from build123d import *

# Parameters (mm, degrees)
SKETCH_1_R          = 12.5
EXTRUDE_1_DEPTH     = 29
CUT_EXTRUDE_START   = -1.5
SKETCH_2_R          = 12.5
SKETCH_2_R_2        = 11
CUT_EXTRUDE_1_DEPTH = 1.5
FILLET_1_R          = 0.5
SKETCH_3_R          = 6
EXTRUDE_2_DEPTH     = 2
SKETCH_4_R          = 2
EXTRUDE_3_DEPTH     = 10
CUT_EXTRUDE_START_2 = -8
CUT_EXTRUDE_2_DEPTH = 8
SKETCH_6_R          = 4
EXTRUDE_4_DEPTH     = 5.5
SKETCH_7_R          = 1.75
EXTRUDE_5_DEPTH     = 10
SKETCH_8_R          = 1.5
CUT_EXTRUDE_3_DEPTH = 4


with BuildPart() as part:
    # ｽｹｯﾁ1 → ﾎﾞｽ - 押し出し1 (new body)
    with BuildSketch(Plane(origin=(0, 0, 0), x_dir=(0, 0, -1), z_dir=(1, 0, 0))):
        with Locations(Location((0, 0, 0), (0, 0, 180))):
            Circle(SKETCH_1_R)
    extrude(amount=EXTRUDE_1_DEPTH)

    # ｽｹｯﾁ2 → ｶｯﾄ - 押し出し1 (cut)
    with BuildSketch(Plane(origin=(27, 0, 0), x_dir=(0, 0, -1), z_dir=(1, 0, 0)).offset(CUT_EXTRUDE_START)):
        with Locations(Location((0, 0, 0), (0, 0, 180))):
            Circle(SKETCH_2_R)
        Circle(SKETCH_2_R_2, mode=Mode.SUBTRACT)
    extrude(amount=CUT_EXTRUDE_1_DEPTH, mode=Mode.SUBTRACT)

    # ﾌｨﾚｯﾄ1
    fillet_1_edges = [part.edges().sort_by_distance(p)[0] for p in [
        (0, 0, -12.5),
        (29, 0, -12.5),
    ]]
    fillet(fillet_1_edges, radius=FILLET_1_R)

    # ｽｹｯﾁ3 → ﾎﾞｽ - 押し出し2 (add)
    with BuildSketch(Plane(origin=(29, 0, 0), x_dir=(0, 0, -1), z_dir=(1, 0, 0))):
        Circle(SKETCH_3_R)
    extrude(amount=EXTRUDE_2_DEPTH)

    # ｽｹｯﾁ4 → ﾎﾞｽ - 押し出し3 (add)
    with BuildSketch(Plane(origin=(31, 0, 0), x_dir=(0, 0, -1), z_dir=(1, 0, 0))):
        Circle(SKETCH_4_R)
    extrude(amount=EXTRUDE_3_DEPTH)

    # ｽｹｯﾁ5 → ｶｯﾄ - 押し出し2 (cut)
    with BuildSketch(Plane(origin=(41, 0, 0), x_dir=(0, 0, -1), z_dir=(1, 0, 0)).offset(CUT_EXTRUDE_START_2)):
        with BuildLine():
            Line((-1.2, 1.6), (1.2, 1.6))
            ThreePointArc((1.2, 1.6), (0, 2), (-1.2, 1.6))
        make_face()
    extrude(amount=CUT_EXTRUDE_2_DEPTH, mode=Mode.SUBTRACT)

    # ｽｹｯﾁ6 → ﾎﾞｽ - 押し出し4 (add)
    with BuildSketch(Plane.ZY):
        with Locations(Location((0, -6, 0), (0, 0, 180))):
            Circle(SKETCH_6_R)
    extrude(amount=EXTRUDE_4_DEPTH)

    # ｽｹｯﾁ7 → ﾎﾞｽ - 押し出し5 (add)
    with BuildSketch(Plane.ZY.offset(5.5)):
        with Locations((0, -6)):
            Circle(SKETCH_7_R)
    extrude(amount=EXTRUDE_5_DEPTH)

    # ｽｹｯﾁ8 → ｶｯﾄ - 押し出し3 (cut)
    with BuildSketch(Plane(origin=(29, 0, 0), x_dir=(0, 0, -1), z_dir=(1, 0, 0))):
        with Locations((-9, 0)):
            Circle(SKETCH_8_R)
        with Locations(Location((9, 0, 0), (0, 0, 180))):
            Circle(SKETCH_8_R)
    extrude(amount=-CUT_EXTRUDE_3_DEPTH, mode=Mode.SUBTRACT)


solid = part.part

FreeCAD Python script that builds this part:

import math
import FreeCAD as App
import Part
import Sketcher


def edges_at(feature, points):
    """Names of the edges that pass closest to the given points."""
    edges = feature.Shape.Edges
    near = lambda p: min(range(len(edges)), key=lambda i: edges[i].distToShape(Part.Vertex(*p))[0])
    return sorted({f"Edge{near(p) + 1}" for p in points})

doc = App.newDocument("Part")
body = doc.addObject("PartDesign::Body", "Body")

# Sketch on YZ plane
sketch1 = body.newObject("Sketcher::SketchObject", "Sketch")
sketch1.AttachmentSupport = (doc.getObject("YZ_Plane"), [""])
sketch1.MapMode = "FlatFace"
sketch1.addGeometry(Part.Circle(App.Vector(0, 0, 0), App.Vector(0, 0, 1), 12), False)
sketch1.addConstraint([
    Sketcher.Constraint("Coincident", 0, 3, -1, 1),
    Sketcher.Constraint("Diameter", 0, 25.0),
])
pad1 = body.newObject("PartDesign::Pad", "Pad")
pad1.Profile = sketch1
pad1.Length = 29

# Sketch on YZ plane
sketch2 = body.newObject("Sketcher::SketchObject", "Sketch001")
sketch2.AttachmentSupport = (doc.getObject("YZ_Plane"), [""])
sketch2.MapMode = "FlatFace"
sketch2.AttachmentOffset = App.Placement(App.Vector(0, 0, 25.5), App.Rotation())
sketch2.addGeometry([
    Part.Circle(App.Vector(0, 0, 0), App.Vector(0, 0, 1), 12),
    Part.Circle(App.Vector(0, 0, 0), App.Vector(0, 0, 1), 11),
], False)
sketch2.addConstraint([
    Sketcher.Constraint("Coincident", 0, 3, -1, 1),
    Sketcher.Constraint("Coincident", 1, 3, -1, 1),
    Sketcher.Constraint("Diameter", 0, 25.0),
    Sketcher.Constraint("Diameter", 1, 22.0),
])
pocket1 = body.newObject("PartDesign::Pocket", "Pocket")
pocket1.Profile = sketch2
pocket1.Length = 1.5
pocket1.Reversed = True
doc.recompute()

fillet = body.newObject("PartDesign::Fillet", "Fillet")
fillet.Base = (pocket1, edges_at(pocket1, [(0, 0, -12.5), (29, 0, -12.5)]))
fillet.Radius = 0.5

# Sketch on YZ plane
sketch3 = body.newObject("Sketcher::SketchObject", "Sketch002")
sketch3.AttachmentSupport = (doc.getObject("YZ_Plane"), [""])
sketch3.MapMode = "FlatFace"
sketch3.AttachmentOffset = App.Placement(App.Vector(0, 0, 29), App.Rotation())
sketch3.addGeometry(Part.Circle(App.Vector(0, 0, 0), App.Vector(0, 0, 1), 6), False)
sketch3.addConstraint([
    Sketcher.Constraint("Coincident", 0, 3, -1, 1),
    Sketcher.Constraint("Diameter", 0, 12.0),
])
pad2 = body.newObject("PartDesign::Pad", "Pad001")
pad2.Profile = sketch3
pad2.Length = 2

# Sketch on YZ plane
sketch4 = body.newObject("Sketcher::SketchObject", "Sketch003")
sketch4.AttachmentSupport = (doc.getObject("YZ_Plane"), [""])
sketch4.MapMode = "FlatFace"
sketch4.AttachmentOffset = App.Placement(App.Vector(0, 0, 31), App.Rotation())
sketch4.addGeometry(Part.Circle(App.Vector(0, 0, 0), App.Vector(0, 0, 1), 2), False)
sketch4.addConstraint([
    Sketcher.Constraint("Coincident", 0, 3, -1, 1),
    Sketcher.Constraint("Diameter", 0, 4.0),
])
pad3 = body.newObject("PartDesign::Pad", "Pad002")
pad3.Profile = sketch4
pad3.Length = 10

# Sketch on YZ plane
sketch5 = body.newObject("Sketcher::SketchObject", "Sketch004")
sketch5.AttachmentSupport = (doc.getObject("YZ_Plane"), [""])
sketch5.MapMode = "FlatFace"
sketch5.AttachmentOffset = App.Placement(App.Vector(0, 0, 33), App.Rotation())
sketch5.addGeometry([
    Part.LineSegment(App.Vector(1.6, 1.2, 0), App.Vector(1.6, -1.2, 0)),
    Part.ArcOfCircle(Part.Circle(App.Vector(0, 0, 0), App.Vector(0, 0, 1), 2), math.radians(-37), math.radians(37)),
], False)
sketch5.addConstraint([
    Sketcher.Constraint("Coincident", 0, 1, 1, 2),
    Sketcher.Constraint("Coincident", 1, 1, 0, 2),
    Sketcher.Constraint("Vertical", 0),
    Sketcher.Constraint("Coincident", 1, 3, -1, 1),
    Sketcher.Constraint("Radius", 1, 2.0),
    Sketcher.Constraint("DistanceY", 0, 2, 0, 1, 2.4),
])
pocket2 = body.newObject("PartDesign::Pocket", "Pocket001")
pocket2.Profile = sketch5
pocket2.Length = 8
pocket2.Reversed = True

# Sketch on YZ plane
sketch6 = body.newObject("Sketcher::SketchObject", "Sketch005")
sketch6.AttachmentSupport = (doc.getObject("YZ_Plane"), [""])
sketch6.MapMode = "FlatFace"
sketch6.addGeometry(Part.Circle(App.Vector(-6, 0, 0), App.Vector(0, 0, 1), 4), False)
sketch6.addConstraint([
    Sketcher.Constraint("PointOnObject", 0, 3, -1),
    Sketcher.Constraint("Diameter", 0, 8.0),
    Sketcher.Constraint("DistanceX", 0, 3, -1, 1, 6.0),
])
pad4 = body.newObject("PartDesign::Pad", "Pad003")
pad4.Profile = sketch6
pad4.Length = 5.5
pad4.Reversed = True

# Sketch on YZ plane
sketch7 = body.newObject("Sketcher::SketchObject", "Sketch006")
sketch7.AttachmentSupport = (doc.getObject("YZ_Plane"), [""])
sketch7.MapMode = "FlatFace"
sketch7.AttachmentOffset = App.Placement(App.Vector(0, 0, -5.5), App.Rotation())
sketch7.addGeometry(Part.Circle(App.Vector(-6, 0, 0), App.Vector(0, 0, 1), 1.8), False)
sketch7.addConstraint([
    Sketcher.Constraint("PointOnObject", 0, 3, -1),
    Sketcher.Constraint("Diameter", 0, 3.5),
    Sketcher.Constraint("DistanceX", 0, 3, -1, 1, 6.0),
])
pad5 = body.newObject("PartDesign::Pad", "Pad004")
pad5.Profile = sketch7
pad5.Length = 10
pad5.Reversed = True

# Sketch on YZ plane
sketch8 = body.newObject("Sketcher::SketchObject", "Sketch007")
sketch8.AttachmentSupport = (doc.getObject("YZ_Plane"), [""])
sketch8.MapMode = "FlatFace"
sketch8.AttachmentOffset = App.Placement(App.Vector(0, 0, 29), App.Rotation())
sketch8.addGeometry([
    Part.Circle(App.Vector(0, 9, 0), App.Vector(0, 0, 1), 1.5),
    Part.Circle(App.Vector(0, -9, 0), App.Vector(0, 0, 1), 1.5),
], False)
sketch8.addConstraint([
    Sketcher.Constraint("Equal", 0, 1),
    Sketcher.Constraint("Symmetric", 0, 3, 1, 3, -1, 1),
    Sketcher.Constraint("PointOnObject", 0, 3, -2),
    Sketcher.Constraint("Diameter", 0, 3.0),
    Sketcher.Constraint("DistanceY", -1, 1, 0, 3, 9.0),
])
pocket3 = body.newObject("PartDesign::Pocket", "Pocket002")
pocket3.Profile = sketch8
pocket3.Length = 4

doc.recompute()
